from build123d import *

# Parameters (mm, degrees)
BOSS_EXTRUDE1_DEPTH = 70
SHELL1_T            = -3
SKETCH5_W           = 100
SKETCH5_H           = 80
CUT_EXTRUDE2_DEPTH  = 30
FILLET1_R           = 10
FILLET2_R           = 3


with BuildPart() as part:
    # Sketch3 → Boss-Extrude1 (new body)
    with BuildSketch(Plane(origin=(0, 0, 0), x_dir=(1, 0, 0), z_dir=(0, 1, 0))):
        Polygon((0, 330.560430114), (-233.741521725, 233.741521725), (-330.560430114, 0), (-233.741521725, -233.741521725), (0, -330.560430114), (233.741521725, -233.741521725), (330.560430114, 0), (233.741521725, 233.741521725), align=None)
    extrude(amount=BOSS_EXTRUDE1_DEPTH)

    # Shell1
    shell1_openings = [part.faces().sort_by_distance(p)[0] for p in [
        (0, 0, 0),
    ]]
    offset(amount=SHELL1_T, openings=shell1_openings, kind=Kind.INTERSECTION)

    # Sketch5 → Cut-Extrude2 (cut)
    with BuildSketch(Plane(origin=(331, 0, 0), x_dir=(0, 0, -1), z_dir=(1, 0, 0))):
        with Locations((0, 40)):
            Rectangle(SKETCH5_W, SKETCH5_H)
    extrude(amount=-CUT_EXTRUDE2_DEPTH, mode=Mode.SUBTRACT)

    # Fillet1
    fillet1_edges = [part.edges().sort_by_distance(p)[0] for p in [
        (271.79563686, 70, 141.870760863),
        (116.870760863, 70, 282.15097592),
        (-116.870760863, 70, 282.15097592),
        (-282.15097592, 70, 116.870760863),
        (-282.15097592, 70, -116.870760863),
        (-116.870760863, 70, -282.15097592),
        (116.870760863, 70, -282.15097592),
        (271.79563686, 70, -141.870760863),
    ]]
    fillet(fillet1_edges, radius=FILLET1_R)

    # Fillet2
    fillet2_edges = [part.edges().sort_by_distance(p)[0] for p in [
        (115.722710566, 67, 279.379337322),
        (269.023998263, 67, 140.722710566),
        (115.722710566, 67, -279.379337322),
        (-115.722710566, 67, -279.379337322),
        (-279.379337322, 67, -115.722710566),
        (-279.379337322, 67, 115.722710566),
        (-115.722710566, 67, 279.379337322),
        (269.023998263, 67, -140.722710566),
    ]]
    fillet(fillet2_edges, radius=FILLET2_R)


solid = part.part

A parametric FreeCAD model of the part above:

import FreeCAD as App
import Part
import Sketcher

V = App.Vector
Q = App.Units.Quantity


def edges_at(feature, points):
    """Names of the edges that pass closest to the given points."""
    edges = feature.Shape.Edges
    near = lambda p: min(range(len(edges)), key=lambda i: edges[i].distToShape(Part.Vertex(*p))[0])
    return sorted({f"Edge{near(p) + 1}" for p in points})


def faces_at(feature, points):
    """Names of the faces that lie closest to the given points."""
    faces = feature.Shape.Faces
    near = lambda p: min(range(len(faces)), key=lambda i: faces[i].distToShape(Part.Vertex(*p))[0])
    return sorted({f"Face{near(p) + 1}" for p in points})


def add_polygon(sketch, points):
    """Adds a closed chain of lines whose ends are joined by coincident constraints."""
    first, n = sketch.GeometryCount, len(points)
    for a, b in zip(points, points[1:] + points[:1]):
        sketch.addGeometry(Part.LineSegment(App.Vector(*a, 0), App.Vector(*b, 0)), False)
    for i in range(n):
        sketch.addConstraint(Sketcher.Constraint("Coincident", first + i, 2, first + (i + 1) % n, 1))

doc = App.newDocument("Part")
body = doc.addObject("PartDesign::Body", "Body")

sketch1 = body.newObject("Sketcher::SketchObject", "Sketch")
sketch1.AttachmentSupport = (doc.getObject("XZ_Plane"), [""])
sketch1.MapMode = "FlatFace"
add_polygon(sketch1, [(0, -330.56043), (-233.741522, -233.741522), (-330.56043, 0), (-233.741522, 233.741522), (0, 330.56043), (233.741522, 233.741522), (330.56043, 0), (233.741522, -233.741522)])
sketch1.addConstraint(Sketcher.Constraint("Symmetric", 0, 2, 4, 2, -1, 1))
sketch1.addConstraint(Sketcher.Constraint("Symmetric", 1, 2, 5, 2, -1, 1))
sketch1.addConstraint(Sketcher.Constraint("Symmetric", 2, 2, 6, 2, -1, 1))
sketch1.addConstraint(Sketcher.Constraint("Symmetric", 3, 2, 7, 2, -1, 1))
sketch1.addConstraint(Sketcher.Constraint("Symmetric", 2, 2, 4, 2, -2))
sketch1.addConstraint(Sketcher.Constraint("PointOnObject", 1, 2, -1))
sketch1.addConstraint(Sketcher.Constraint("PointOnObject", 3, 2, -2))
sketch1.addConstraint(Sketcher.Constraint("Perpendicular", 0, 2))
sketch1.addConstraint(Sketcher.Constraint("Equal", 0, 1))
sketch1.addConstraint(Sketcher.Constraint("Distance", 0, 253.0))
sketch1.addConstraint(Sketcher.Constraint("Angle", 0, Q("157.5 deg")))
pad1 = body.newObject("PartDesign::Pad", "Pad")
pad1.Profile = sketch1
pad1.Length = 70
pad1.Reversed = True
doc.recompute()

thickness = body.newObject("PartDesign::Thickness", "Thickness")
thickness.Base = (pad1, faces_at(pad1, [(0, 0, 0)]))
thickness.Value = 3
thickness.Reversed = True
thickness.Join = "Intersection"

sketch2 = body.newObject("Sketcher::SketchObject", "Sketch001")
sketch2.AttachmentSupport = (doc.getObject("YZ_Plane"), [""])
sketch2.MapMode = "FlatFace"
sketch2.AttachmentOffset = App.Placement(V(0, 0, 331), App.Rotation())
add_polygon(sketch2, [(80, 50), (0, 50), (0, -50), (80, -50)])
sketch2.addConstraint(Sketcher.Constraint("Horizontal", 0))
sketch2.addConstraint(Sketcher.Constraint("Vertical", 1))
sketch2.addConstraint(Sketcher.Constraint("Horizontal", 2))
sketch2.addConstraint(Sketcher.Constraint("Vertical", 3))
sketch2.addConstraint(Sketcher.Constraint("Symmetric", 0, 2, 1, 2, -1, 1))
sketch2.addConstraint(Sketcher.Constraint("DistanceX", 0, 2, 0, 1, 80.0))
sketch2.addConstraint(Sketcher.Constraint("DistanceY", 1, 2, 1, 1, 100.0))
pocket1 = body.newObject("PartDesign::Pocket", "Pocket")
pocket1.Profile = sketch2
pocket1.Length = 30
doc.recompute()

fillet = body.newObject("PartDesign::Fillet", "Fillet")
fillet.Base = (pocket1, edges_at(pocket1, [
    (271.796, 70, 141.871),
    (116.871, 70, 282.151),
    (-116.871, 70, 282.151),
    (-282.151, 70, 116.871),
    (-282.151, 70, -116.871),
    (-116.871, 70, -282.151),
    (116.871, 70, -282.151),
    (271.796, 70, -141.871),
]))
fillet.Radius = 10
doc.recompute()

fillet2 = body.newObject("PartDesign::Fillet", "Fillet001")
fillet2.Base = (fillet, edges_at(fillet, [
    (115.723, 67, 279.379),
    (269.024, 67, 140.723),
    (115.723, 67, -279.379),
    (-115.723, 67, -279.379),
    (-279.379, 67, -115.723),
    (-279.379, 67, 115.723),
    (-115.723, 67, 279.379),
    (269.024, 67, -140.723),
]))
fillet2.Radius = 3

doc.recompute()
